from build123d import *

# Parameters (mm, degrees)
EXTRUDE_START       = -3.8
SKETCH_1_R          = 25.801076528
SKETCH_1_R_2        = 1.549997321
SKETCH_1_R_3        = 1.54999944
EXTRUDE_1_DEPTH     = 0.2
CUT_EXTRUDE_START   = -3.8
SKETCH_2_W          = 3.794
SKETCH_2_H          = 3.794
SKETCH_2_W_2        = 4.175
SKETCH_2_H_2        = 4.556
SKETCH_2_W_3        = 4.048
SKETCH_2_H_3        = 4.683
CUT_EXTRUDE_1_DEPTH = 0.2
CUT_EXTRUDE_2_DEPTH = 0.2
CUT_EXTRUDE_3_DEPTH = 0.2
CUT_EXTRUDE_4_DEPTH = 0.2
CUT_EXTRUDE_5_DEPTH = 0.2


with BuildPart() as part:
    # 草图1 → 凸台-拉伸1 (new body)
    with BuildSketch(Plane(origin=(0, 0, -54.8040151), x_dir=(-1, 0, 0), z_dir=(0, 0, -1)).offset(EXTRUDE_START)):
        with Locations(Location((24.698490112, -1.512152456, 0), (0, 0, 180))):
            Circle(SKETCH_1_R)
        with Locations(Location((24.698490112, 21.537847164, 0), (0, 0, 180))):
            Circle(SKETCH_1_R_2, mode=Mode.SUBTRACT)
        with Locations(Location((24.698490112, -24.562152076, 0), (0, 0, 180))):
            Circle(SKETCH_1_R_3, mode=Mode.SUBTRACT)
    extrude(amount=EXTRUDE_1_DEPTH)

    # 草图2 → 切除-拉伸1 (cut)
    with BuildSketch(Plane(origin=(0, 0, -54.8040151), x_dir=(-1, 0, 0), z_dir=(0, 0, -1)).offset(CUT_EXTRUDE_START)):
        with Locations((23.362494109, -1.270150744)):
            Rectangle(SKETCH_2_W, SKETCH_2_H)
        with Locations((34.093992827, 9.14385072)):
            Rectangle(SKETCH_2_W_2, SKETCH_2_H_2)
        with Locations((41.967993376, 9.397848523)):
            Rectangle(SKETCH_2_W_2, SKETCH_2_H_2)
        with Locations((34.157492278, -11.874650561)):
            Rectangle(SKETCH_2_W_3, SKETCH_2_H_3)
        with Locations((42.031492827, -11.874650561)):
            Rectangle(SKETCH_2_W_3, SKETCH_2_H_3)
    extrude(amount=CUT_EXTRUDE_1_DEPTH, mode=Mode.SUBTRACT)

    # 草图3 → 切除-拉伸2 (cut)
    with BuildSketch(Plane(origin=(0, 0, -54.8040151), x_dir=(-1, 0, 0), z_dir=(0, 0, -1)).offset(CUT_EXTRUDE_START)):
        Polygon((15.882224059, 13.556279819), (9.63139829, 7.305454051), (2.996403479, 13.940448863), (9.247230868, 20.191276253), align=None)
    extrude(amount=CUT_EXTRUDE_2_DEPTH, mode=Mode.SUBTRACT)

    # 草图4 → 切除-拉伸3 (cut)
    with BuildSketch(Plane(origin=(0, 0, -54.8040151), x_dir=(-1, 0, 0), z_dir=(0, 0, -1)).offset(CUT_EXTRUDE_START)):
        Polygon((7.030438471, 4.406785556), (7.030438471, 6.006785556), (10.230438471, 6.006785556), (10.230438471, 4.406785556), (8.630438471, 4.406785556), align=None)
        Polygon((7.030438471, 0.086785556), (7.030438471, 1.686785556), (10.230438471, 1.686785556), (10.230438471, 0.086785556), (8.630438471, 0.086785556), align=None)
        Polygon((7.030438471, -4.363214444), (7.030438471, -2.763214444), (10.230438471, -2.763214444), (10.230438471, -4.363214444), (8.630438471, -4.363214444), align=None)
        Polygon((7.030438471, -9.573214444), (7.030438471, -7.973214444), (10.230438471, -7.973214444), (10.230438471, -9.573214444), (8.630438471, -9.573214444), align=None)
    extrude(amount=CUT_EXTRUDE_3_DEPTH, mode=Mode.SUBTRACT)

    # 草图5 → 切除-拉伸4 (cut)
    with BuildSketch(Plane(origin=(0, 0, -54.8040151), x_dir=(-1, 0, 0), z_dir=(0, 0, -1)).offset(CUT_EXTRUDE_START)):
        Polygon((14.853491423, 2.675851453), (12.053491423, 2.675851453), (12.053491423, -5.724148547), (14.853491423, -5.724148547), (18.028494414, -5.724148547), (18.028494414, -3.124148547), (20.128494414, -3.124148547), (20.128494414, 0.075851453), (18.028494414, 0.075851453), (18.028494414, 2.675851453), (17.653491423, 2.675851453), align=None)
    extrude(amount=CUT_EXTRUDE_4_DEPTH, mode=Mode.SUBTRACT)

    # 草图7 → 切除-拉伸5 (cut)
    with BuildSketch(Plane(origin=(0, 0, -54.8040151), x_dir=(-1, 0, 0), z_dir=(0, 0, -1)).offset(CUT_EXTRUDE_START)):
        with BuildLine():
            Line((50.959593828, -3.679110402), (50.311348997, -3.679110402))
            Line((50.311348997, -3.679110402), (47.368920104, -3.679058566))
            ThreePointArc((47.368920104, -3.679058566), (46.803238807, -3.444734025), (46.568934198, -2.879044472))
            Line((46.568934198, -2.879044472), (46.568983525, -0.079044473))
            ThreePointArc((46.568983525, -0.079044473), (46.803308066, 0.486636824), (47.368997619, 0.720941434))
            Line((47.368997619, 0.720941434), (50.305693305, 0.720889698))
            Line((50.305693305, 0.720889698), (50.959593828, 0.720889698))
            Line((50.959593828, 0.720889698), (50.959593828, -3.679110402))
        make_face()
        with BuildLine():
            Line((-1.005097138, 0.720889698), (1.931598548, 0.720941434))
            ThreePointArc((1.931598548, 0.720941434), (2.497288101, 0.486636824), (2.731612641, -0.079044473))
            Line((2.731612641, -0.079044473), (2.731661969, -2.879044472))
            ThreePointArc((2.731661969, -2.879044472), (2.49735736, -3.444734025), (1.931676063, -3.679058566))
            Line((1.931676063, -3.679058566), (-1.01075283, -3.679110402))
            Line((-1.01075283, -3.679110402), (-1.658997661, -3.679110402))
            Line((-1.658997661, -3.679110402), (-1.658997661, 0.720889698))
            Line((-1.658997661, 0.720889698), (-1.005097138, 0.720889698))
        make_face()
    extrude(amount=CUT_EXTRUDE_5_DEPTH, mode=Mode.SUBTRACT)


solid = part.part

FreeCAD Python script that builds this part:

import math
import FreeCAD as App
import Part
import Sketcher
Q = App.Units.Quantity


def add_polygon(sketch, points):
    """Adds a closed chain of lines whose ends are joined by coincident constraints."""
    first, n = sketch.GeometryCount, len(points)
    for a, b in zip(points, points[1:] + points[:1]):
        sketch.addGeometry(Part.LineSegment(App.Vector(*a, 0), App.Vector(*b, 0)), False)
    for i in range(n):
        sketch.addConstraint(Sketcher.Constraint("Coincident", first + i, 2, first + (i + 1) % n, 1))

doc = App.newDocument("Part")
body = doc.addObject("PartDesign::Body", "Body")

sketch1 = body.newObject("Sketcher::SketchObject", "Sketch")
sketch1.AttachmentSupport = (doc.getObject("XY_Plane"), [""])
sketch1.MapMode = "FlatFace"
sketch1.AttachmentOffset = App.Placement(App.Vector(0, 0, -51.004015), App.Rotation())
sketch1.addGeometry([
    Part.Circle(App.Vector(-24.7, -1.5, 0), App.Vector(0, 0, 1), 25.8),
    Part.Circle(App.Vector(-24.7, 21.5, 0), App.Vector(0, 0, 1), 1.5),
    Part.Circle(App.Vector(-24.7, -24.6, 0), App.Vector(0, 0, 1), 1.5),
], False)
sketch1.addConstraint([
    Sketcher.Constraint("Vertical", 0, 3, 1, 3),
    Sketcher.Constraint("Vertical", 1, 3, 2, 3),
    Sketcher.Constraint("Diameter", 2, 3.099999),
    Sketcher.Constraint("DistanceY", 2, 3, 1, 3, 46.099999),
    Sketcher.Constraint("DistanceY", 0, 3, 1, 3, 23.05),
    Sketcher.Constraint("Diameter", 0, 51.602153),
    Sketcher.Constraint("Diameter", 1, 3.099995),
    Sketcher.Constraint("DistanceX", 0, 3, -1, 1, 24.69849),
    Sketcher.Constraint("DistanceY", 0, 3, -1, 1, 1.512152),
])
pad1 = body.newObject("PartDesign::Pad", "Pad")
pad1.Profile = sketch1
pad1.Length = 0.2
pad1.Reversed = True

sketch2 = body.newObject("Sketcher::SketchObject", "Sketch001")
sketch2.AttachmentSupport = (doc.getObject("XY_Plane"), [""])
sketch2.MapMode = "FlatFace"
sketch2.AttachmentOffset = App.Placement(App.Vector(0, 0, -51.004015), App.Rotation())
add_polygon(sketch2, [(-21.5, 0.6), (-21.5, -3.2), (-25.3, -3.2), (-25.3, 0.6)])
add_polygon(sketch2, [(-32, 11.4), (-32, 6.9), (-36.2, 6.9), (-36.2, 11.4)])
add_polygon(sketch2, [(-39.9, 11.7), (-39.9, 7.1), (-44.1, 7.1), (-44.1, 11.7)])
add_polygon(sketch2, [(-32.1, -9.5), (-32.1, -14.2), (-36.2, -14.2), (-36.2, -9.5)])
add_polygon(sketch2, [(-40, -9.5), (-40, -14.2), (-44.1, -14.2), (-44.1, -9.5)])
sketch2.addConstraint([
    Sketcher.Constraint("Vertical", 0),
    Sketcher.Constraint("Horizontal", 1),
    Sketcher.Constraint("Vertical", 2),
    Sketcher.Constraint("Horizontal", 3),
    Sketcher.Constraint("Vertical", 4),
    Sketcher.Constraint("Horizontal", 5),
    Sketcher.Constraint("Vertical", 6),
    Sketcher.Constraint("Horizontal", 7),
    Sketcher.Constraint("Vertical", 8),
    Sketcher.Constraint("Horizontal", 9),
    Sketcher.Constraint("Vertical", 10),
    Sketcher.Constraint("Horizontal", 11),
    Sketcher.Constraint("Vertical", 12),
    Sketcher.Constraint("Horizontal", 13),
    Sketcher.Constraint("Vertical", 14),
    Sketcher.Constraint("Horizontal", 15),
    Sketcher.Constraint("Vertical", 16),
    Sketcher.Constraint("Horizontal", 17),
    Sketcher.Constraint("Vertical", 18),
    Sketcher.Constraint("Horizontal", 19),
    Sketcher.Constraint("Horizontal", 13, 2, 16, 2),
    Sketcher.Constraint("Horizontal", 15, 2, 18, 2),
    Sketcher.Constraint("Vertical", 6, 2, 13, 2),
    Sketcher.Constraint("Vertical", 10, 2, 17, 2),
    Sketcher.Constraint("Equal", 7, 9),
    Sketcher.Constraint("Equal", 15, 17),
    Sketcher.Constraint("Equal", 3, 0),
    Sketcher.Constraint("Equal", 6, 8),
    Sketcher.Constraint("DistanceX", 1, 2, 1, 1, 3.794),
    Sketcher.Constraint("DistanceX", 5, 2, 5, 1, 4.175),
    Sketcher.Constraint("DistanceX", 13, 2, 13, 1, 4.048),
    Sketcher.Constraint("DistanceY", 4, 2, 4, 1, 4.556),
    Sketcher.Constraint("DistanceY", 12, 2, 12, 1, 4.683),
    Sketcher.Constraint("DistanceY", 14, 2, 2, 2, 10.16),
    Sketcher.Constraint("DistanceX", 4, 2, 2, 2, 6.746999),
    Sketcher.Constraint("DistanceY", 2, 2, 4, 2, 6.239001),
    Sketcher.Constraint("DistanceX", 8, 2, 5, 2, 3.699001),
    Sketcher.Constraint("DistanceY", 2, 2, 8, 2, 6.492999),
    Sketcher.Constraint("DistanceY", 0, 2, -1, 1, 3.167151),
    Sketcher.Constraint("DistanceX", 0, 2, -1, 1, 21.465494),
])
pocket1 = body.newObject("PartDesign::Pocket", "Pocket")
pocket1.Profile = sketch2
pocket1.Length = 0.2

sketch3 = body.newObject("Sketcher::SketchObject", "Sketch002")
sketch3.AttachmentSupport = (doc.getObject("XY_Plane"), [""])
sketch3.MapMode = "FlatFace"
sketch3.AttachmentOffset = App.Placement(App.Vector(0, 0, -51.004015), App.Rotation())
add_polygon(sketch3, [(-10, 7), (-16, 14), (-9, 20), (-3, 14)])
sketch3.addConstraint([
    Sketcher.Constraint("Perpendicular", 0, 1),
    Sketcher.Constraint("Perpendicular", 1, 2),
    Sketcher.Constraint("Perpendicular", 2, 3),
    Sketcher.Constraint("Angle", 0, Q("135 deg")),
    Sketcher.Constraint("Distance", 1, 9.3833),
    Sketcher.Constraint("DistanceX", 3, 2, -1, 1, 9.631398),
    Sketcher.Constraint("DistanceY", -1, 1, 0, 2, 13.55628),
    Sketcher.Constraint("DistanceX", 1, 2, -1, 1, 9.247231),
])
pocket2 = body.newObject("PartDesign::Pocket", "Pocket001")
pocket2.Profile = sketch3
pocket2.Length = 0.2

sketch4 = body.newObject("Sketcher::SketchObject", "Sketch003")
sketch4.AttachmentSupport = (doc.getObject("XY_Plane"), [""])
sketch4.MapMode = "FlatFace"
sketch4.AttachmentOffset = App.Placement(App.Vector(0, 0, -51.004015), App.Rotation())
add_polygon(sketch4, [(-7, 6), (-7, 4.4), (-10.2, 4.4), (-10.2, 6)])
add_polygon(sketch4, [(-7, 1.7), (-7, 0.1), (-10.2, 0.1), (-10.2, 1.7)])
add_polygon(sketch4, [(-7, -2.8), (-7, -4.4), (-10.2, -4.4), (-10.2, -2.8)])
add_polygon(sketch4, [(-7, -8), (-7, -9.6), (-10.2, -9.6), (-10.2, -8)])
sketch4.addConstraint([
    Sketcher.Constraint("Vertical", 0),
    Sketcher.Constraint("Horizontal", 1),
    Sketcher.Constraint("Vertical", 2),
    Sketcher.Constraint("Horizontal", 3),
    Sketcher.Constraint("Vertical", 4),
    Sketcher.Constraint("Horizontal", 5),
    Sketcher.Constraint("Vertical", 6),
    Sketcher.Constraint("Horizontal", 7),
    Sketcher.Constraint("Vertical", 8),
    Sketcher.Constraint("Horizontal", 9),
    Sketcher.Constraint("Vertical", 10),
    Sketcher.Constraint("Horizontal", 11),
    Sketcher.Constraint("Vertical", 12),
    Sketcher.Constraint("Horizontal", 13),
    Sketcher.Constraint("Vertical", 14),
    Sketcher.Constraint("Horizontal", 15),
    Sketcher.Constraint("Vertical", 3, 2, 4, 2),
    Sketcher.Constraint("Vertical", 2, 2, 5, 2),
    Sketcher.Constraint("Vertical", 7, 2, 8, 2),
    Sketcher.Constraint("Vertical", 6, 2, 9, 2),
    Sketcher.Constraint("Vertical", 11, 2, 12, 2),
    Sketcher.Constraint("Vertical", 10, 2, 13, 2),
    Sketcher.Constraint("Equal", 2, 4),
    Sketcher.Constraint("Equal", 6, 8),
    Sketcher.Constraint("Equal", 10, 12),
    Sketcher.Constraint("DistanceX", 1, 2, 1, 1, 3.2),
    Sketcher.Constraint("DistanceY", 0, 2, 0, 1, 1.6),
    Sketcher.Constraint("DistanceY", 4, 2, 0, 2, 4.32),
    Sketcher.Constraint("DistanceY", 8, 2, 4, 2, 4.45),
    Sketcher.Constraint("DistanceY", 12, 2, 8, 2, 5.21),
    Sketcher.Constraint("DistanceX", 0, 2, -1, 1, 7.030438),
    Sketcher.Constraint("DistanceY", -1, 1, 0, 2, 4.406786),
])
pocket3 = body.newObject("PartDesign::Pocket", "Pocket002")
pocket3.Profile = sketch4
pocket3.Length = 0.2

sketch5 = body.newObject("Sketcher::SketchObject", "Sketch004")
sketch5.AttachmentSupport = (doc.getObject("XY_Plane"), [""])
sketch5.MapMode = "FlatFace"
sketch5.AttachmentOffset = App.Placement(App.Vector(0, 0, -51.004015), App.Rotation())
add_polygon(sketch5, [(-12.1, 2.7), (-12.1, -5.7), (-18, -5.7), (-18, -3.1), (-20.1, -3.1), (-20.1, 0.1), (-18, 0.1), (-18, 2.7)])
sketch5.addConstraint([
    Sketcher.Constraint("Vertical", 0),
    Sketcher.Constraint("Horizontal", 1),
    Sketcher.Constraint("Vertical", 2),
    Sketcher.Constraint("Horizontal", 3),
    Sketcher.Constraint("Vertical", 4),
    Sketcher.Constraint("Horizontal", 5),
    Sketcher.Constraint("Vertical", 6),
    Sketcher.Constraint("Horizontal", 7),
    Sketcher.Constraint("Vertical", 2, 2, 5, 2),
    Sketcher.Constraint("Equal", 2, 6),
    Sketcher.Constraint("DistanceX", 3, 2, 3, 1, 2.1),
    Sketcher.Constraint("DistanceY", 0, 2, 0, 1, 8.4),
    Sketcher.Constraint("DistanceY", 2, 1, 2, 2, 2.6),
    Sketcher.Constraint("DistanceX", 1, 2, 1, 1, 5.975003),
    Sketcher.Constraint("DistanceX", 0, 2, -1, 1, 12.053491),
    Sketcher.Constraint("DistanceY", 0, 2, -1, 1, 5.724149),
])
pocket4 = body.newObject("PartDesign::Pocket", "Pocket003")
pocket4.Profile = sketch5
pocket4.Length = 0.2

sketch6 = body.newObject("Sketcher::SketchObject", "Sketch005")
sketch6.AttachmentSupport = (doc.getObject("XY_Plane"), [""])
sketch6.MapMode = "FlatFace"
sketch6.AttachmentOffset = App.Placement(App.Vector(0, 0, -51.004015), App.Rotation())
sketch6.addGeometry([
    Part.LineSegment(App.Vector(-50.3, -3.7, 0), App.Vector(-51, -3.7, 0)),
    Part.LineSegment(App.Vector(-51, -3.7, 0), App.Vector(-51, 0.7, 0)),
    Part.LineSegment(App.Vector(-51, 0.7, 0), App.Vector(-50.3, 0.7, 0)),
    Part.LineSegment(App.Vector(-50.3, 0.7, 0), App.Vector(-47.4, 0.7, 0)),
    Part.ArcOfCircle(Part.Circle(App.Vector(-47.4, -0.1, 0), App.Vector(0, 0, 1), 0.8), math.radians(0), math.radians(90)),
    Part.LineSegment(App.Vector(-46.6, -0.1, 0), App.Vector(-46.6, -2.9, 0)),
    Part.ArcOfCircle(Part.Circle(App.Vector(-47.4, -2.9, 0), App.Vector(0, 0, 1), 0.8), math.radians(-90), math.radians(0)),
    Part.LineSegment(App.Vector(-47.4, -3.7, 0), App.Vector(-50.3, -3.7, 0)),
    Part.LineSegment(App.Vector(-1.9, 0.7, 0), App.Vector(1, 0.7, 0)),
    Part.LineSegment(App.Vector(1, 0.7, 0), App.Vector(1.7, 0.7, 0)),
    Part.LineSegment(App.Vector(1.7, 0.7, 0), App.Vector(1.7, -3.7, 0)),
    Part.LineSegment(App.Vector(1.7, -3.7, 0), App.Vector(1, -3.7, 0)),
    Part.LineSegment(App.Vector(1, -3.7, 0), App.Vector(-1.9, -3.7, 0)),
    Part.ArcOfCircle(Part.Circle(App.Vector(-1.9, -2.9, 0), App.Vector(0, 0, 1), 0.8), math.radians(180), math.radians(270)),
    Part.LineSegment(App.Vector(-2.7, -2.9, 0), App.Vector(-2.7, -0.1, 0)),
    Part.ArcOfCircle(Part.Circle(App.Vector(-1.9, -0.1, 0), App.Vector(0, 0, 1), 0.8), math.radians(90), math.radians(180)),
], False)
sketch6.addConstraint([
    Sketcher.Constraint("Coincident", 0, 2, 1, 1),
    Sketcher.Constraint("Coincident", 1, 2, 2, 1),
    Sketcher.Constraint("Coincident", 2, 2, 3, 1),
    Sketcher.Constraint("Tangent", 3, 2, 4, 2),
    Sketcher.Constraint("Tangent", 4, 1, 5, 1),
    Sketcher.Constraint("Tangent", 5, 2, 6, 2),
    Sketcher.Constraint("Tangent", 6, 1, 7, 1),
    Sketcher.Constraint("Coincident", 7, 2, 0, 1),
    Sketcher.Constraint("Coincident", 8, 2, 9, 1),
    Sketcher.Constraint("Coincident", 9, 2, 10, 1),
    Sketcher.Constraint("Coincident", 10, 2, 11, 1),
    Sketcher.Constraint("Coincident", 11, 2, 12, 1),
    Sketcher.Constraint("Tangent", 12, 2, 13, 2),
    Sketcher.Constraint("Tangent", 13, 1, 14, 1),
    Sketcher.Constraint("Tangent", 14, 2, 15, 2),
    Sketcher.Constraint("Tangent", 15, 1, 8, 1),
    Sketcher.Constraint("Horizontal", 0),
    Sketcher.Constraint("Vertical", 1),
    Sketcher.Constraint("Horizontal", 2),
    Sketcher.Constraint("Horizontal", 9),
    Sketcher.Constraint("Vertical", 10),
    Sketcher.Constraint("Horizontal", 11),
    Sketcher.Constraint("Equal", 4, 6),
    Sketcher.Constraint("Equal", 6, 13),
    Sketcher.Constraint("Equal", 13, 15),
    Sketcher.Constraint("Perpendicular", 3, 5),
    Sketcher.Constraint("Perpendicular", 5, 7),
    Sketcher.Constraint("Parallel", 8, 12),
    Sketcher.Constraint("Perpendicular", 12, 14),
    Sketcher.Constraint("Horizontal", 6, 3, 13, 3),
    Sketcher.Constraint("Horizontal", 4, 3, 15, 3),
    Sketcher.Constraint("Horizontal", 2, 2, 8, 2),
    Sketcher.Constraint("Equal", 2, 9),
    Sketcher.Constraint("Equal", 0, 11),
    Sketcher.Constraint("Equal", 3, 8),
    Sketcher.Constraint("Radius", 4, 0.8),
    Sketcher.Constraint("DistanceY", 1, 1, 1, 2, 4.4),
    Sketcher.Constraint("DistanceX", 2, 1, 2, 2, 0.653901),
    Sketcher.Constraint("DistanceX", 15, 1, -1, 1, 1.931599),
    Sketcher.Constraint("Distance", 7, 2.942429),
    Sketcher.Constraint("DistanceX", 0, 2, 0, 1, 0.648245),
    Sketcher.Constraint("DistanceY", 4, 3, -1, 1, 0.079059),
    Sketcher.Constraint("DistanceX", 13, 3, -1, 1, 1.931662),
    Sketcher.Constraint("DistanceX", 6, 1, -1, 1, 47.36892),
])
pocket5 = body.newObject("PartDesign::Pocket", "Pocket004")
pocket5.Profile = sketch6
pocket5.Length = 0.2

doc.recompute()
